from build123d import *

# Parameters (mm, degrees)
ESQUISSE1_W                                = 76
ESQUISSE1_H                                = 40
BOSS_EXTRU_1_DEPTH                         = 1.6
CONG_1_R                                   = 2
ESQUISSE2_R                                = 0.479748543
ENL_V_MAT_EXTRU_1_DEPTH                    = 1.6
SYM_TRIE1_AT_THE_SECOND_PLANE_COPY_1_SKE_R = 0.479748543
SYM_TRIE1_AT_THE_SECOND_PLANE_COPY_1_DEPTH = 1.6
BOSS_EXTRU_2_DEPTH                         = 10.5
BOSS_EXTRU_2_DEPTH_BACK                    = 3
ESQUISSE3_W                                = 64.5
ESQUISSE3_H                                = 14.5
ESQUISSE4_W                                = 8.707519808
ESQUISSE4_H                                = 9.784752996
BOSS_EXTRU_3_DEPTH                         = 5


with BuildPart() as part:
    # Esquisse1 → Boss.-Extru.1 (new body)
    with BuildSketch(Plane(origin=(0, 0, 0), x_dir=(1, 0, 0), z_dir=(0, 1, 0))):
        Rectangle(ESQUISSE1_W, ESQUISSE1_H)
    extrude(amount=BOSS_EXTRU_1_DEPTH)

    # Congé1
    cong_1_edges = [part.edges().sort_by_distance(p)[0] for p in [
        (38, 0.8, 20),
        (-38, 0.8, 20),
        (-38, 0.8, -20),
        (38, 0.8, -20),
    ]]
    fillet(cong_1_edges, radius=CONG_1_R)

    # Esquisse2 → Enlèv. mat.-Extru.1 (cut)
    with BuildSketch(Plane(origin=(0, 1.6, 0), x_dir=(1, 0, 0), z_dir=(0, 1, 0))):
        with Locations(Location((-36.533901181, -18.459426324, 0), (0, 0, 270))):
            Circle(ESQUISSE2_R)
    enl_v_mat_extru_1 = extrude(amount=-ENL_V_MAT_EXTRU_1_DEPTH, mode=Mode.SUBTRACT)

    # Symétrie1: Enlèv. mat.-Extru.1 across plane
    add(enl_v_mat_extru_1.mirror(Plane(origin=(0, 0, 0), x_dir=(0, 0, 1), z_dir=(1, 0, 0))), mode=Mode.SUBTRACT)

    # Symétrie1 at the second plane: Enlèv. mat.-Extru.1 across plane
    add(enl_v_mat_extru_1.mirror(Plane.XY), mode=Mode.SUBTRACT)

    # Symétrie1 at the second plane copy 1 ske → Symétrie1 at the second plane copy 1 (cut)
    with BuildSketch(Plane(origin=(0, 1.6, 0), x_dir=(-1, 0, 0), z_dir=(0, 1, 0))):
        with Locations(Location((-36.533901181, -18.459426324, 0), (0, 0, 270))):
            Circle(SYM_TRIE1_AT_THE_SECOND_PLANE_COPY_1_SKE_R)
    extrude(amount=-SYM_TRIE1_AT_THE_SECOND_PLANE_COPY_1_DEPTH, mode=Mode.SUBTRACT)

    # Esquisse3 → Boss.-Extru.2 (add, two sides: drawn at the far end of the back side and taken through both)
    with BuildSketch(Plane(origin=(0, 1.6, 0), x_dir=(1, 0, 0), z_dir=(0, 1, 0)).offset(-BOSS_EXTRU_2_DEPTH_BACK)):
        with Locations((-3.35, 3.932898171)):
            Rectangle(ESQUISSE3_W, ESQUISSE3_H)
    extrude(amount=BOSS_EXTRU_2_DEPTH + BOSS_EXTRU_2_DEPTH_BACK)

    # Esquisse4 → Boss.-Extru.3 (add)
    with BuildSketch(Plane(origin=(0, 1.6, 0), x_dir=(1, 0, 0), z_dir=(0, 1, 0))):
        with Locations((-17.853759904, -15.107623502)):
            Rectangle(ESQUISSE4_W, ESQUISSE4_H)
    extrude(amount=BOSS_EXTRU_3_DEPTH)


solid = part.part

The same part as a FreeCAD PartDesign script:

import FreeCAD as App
import Part
import Sketcher
from FreeCAD import Vector
Q = App.Units.Quantity


def edges_at(feature, points):
    """Names of the edges that pass closest to the given points."""
    edges = feature.Shape.Edges
    near = lambda p: min(range(len(edges)), key=lambda i: edges[i].distToShape(Part.Vertex(*p))[0])
    return sorted({f"Edge{near(p) + 1}" for p in points})


def add_polygon(sketch, points):
    """Adds a closed chain of lines whose ends are joined by coincident constraints."""
    first, n = sketch.GeometryCount, len(points)
    for a, b in zip(points, points[1:] + points[:1]):
        sketch.addGeometry(Part.LineSegment(App.Vector(*a, 0), App.Vector(*b, 0)), False)
    for i in range(n):
        sketch.addConstraint(Sketcher.Constraint("Coincident", first + i, 2, first + (i + 1) % n, 1))

doc = App.newDocument("Part")
body = doc.addObject("PartDesign::Body", "Body")

sketch1 = doc.addObject("Sketcher::SketchObject", "Sketch")
body.addObject(sketch1)
sketch1.AttachmentSupport = (doc.XZ_Plane, [""])
sketch1.MapMode = "FlatFace"
add_polygon(sketch1, [(-38, -20), (-38, 20), (38, 20), (38, -20)])
sketch1.addConstraint([
    Sketcher.Constraint("Vertical", 0),
    Sketcher.Constraint("Horizontal", 1),
    Sketcher.Constraint("Vertical", 2),
    Sketcher.Constraint("Horizontal", 3),
    Sketcher.Constraint("Symmetric", 0, 2, 2, 2, -1, 1),
    Sketcher.Constraint("DistanceX", 1, 1, 1, 2, Q("76 mm")),
    Sketcher.Constraint("DistanceY", 0, 1, 0, 2, Q("40 mm")),
])
pad1 = doc.addObject("PartDesign::Pad", "Pad")
body.addObject(pad1)
pad1.Profile = sketch1
pad1.Length = 1.6
pad1.Reversed = True
doc.recompute()

fillet = doc.addObject("PartDesign::Fillet", "Fillet")
body.addObject(fillet)
fillet.Base = (pad1, edges_at(pad1, [
    (38, 0.8, 20),
    (-38, 0.8, 20),
    (-38, 0.8, -20),
    (38, 0.8, -20),
]))
fillet.Radius = 2

sketch2 = doc.addObject("Sketcher::SketchObject", "Sketch001")
body.addObject(sketch2)
sketch2.AttachmentSupport = (doc.XZ_Plane, [""])
sketch2.MapMode = "FlatFace"
sketch2.AttachmentOffset = App.Placement(Vector(0, 0, -1.6), App.Rotation())
sketch2.addGeometry(Part.Circle(Vector(-36.533901, 18.459426, 0), Vector(0, 0, 1), 0.479749), False)
sketch2.addConstraint([
    Sketcher.Constraint("Diameter", 0, Q("0.959497 mm")),
    Sketcher.Constraint("DistanceX", 0, 3, -1, 1, Q("36.533901 mm")),
    Sketcher.Constraint("DistanceY", -1, 1, 0, 3, Q("18.459426 mm")),
])
pocket1 = doc.addObject("PartDesign::Pocket", "Pocket")
body.addObject(pocket1)
pocket1.Profile = sketch2
pocket1.Length = 1.6
pocket1.Reversed = True
doc.recompute()

mirrored = doc.addObject("PartDesign::Mirrored", "Mirrored")
body.addObject(mirrored)
mirrored.Originals = [pocket1]
mirrored.MirrorPlane = (doc.YZ_Plane, [""])
body.Tip = mirrored
doc.recompute()

mirrored2 = doc.addObject("PartDesign::Mirrored", "Mirrored001")
body.addObject(mirrored2)
mirrored2.Originals = [pocket1]
mirrored2.MirrorPlane = (doc.XY_Plane, [""])
body.Tip = mirrored2

sketch3 = doc.addObject("Sketcher::SketchObject", "Sketch002")
body.addObject(sketch3)
sketch3.AttachmentSupport = (doc.XZ_Plane, [""])
sketch3.MapMode = "FlatFace"
sketch3.AttachmentOffset = App.Placement(Vector(0, 0, -1.6), App.Rotation())
sketch3.addGeometry(Part.Circle(Vector(36.533901, -18.459426, 0), Vector(0, 0, 1), 0.479749), False)
sketch3.addConstraint([
    Sketcher.Constraint("Diameter", 0, Q("0.959497 mm")),
    Sketcher.Constraint("DistanceX", -1, 1, 0, 3, Q("36.533901 mm")),
    Sketcher.Constraint("DistanceY", 0, 3, -1, 1, Q("18.459426 mm")),
])
pocket2 = doc.addObject("PartDesign::Pocket", "Pocket001")
body.addObject(pocket2)
pocket2.Profile = sketch3
pocket2.Length = 1.6
pocket2.Reversed = True

sketch4 = doc.addObject("Sketcher::SketchObject", "Sketch003")
body.addObject(sketch4)
sketch4.AttachmentSupport = (doc.XZ_Plane, [""])
sketch4.MapMode = "FlatFace"
sketch4.AttachmentOffset = App.Placement(Vector(0, 0, -1.6), App.Rotation())
add_polygon(sketch4, [(-35.6, -11.182898), (-35.6, 3.317102), (28.9, 3.317102), (28.9, -11.182898)])
sketch4.addConstraint([
    Sketcher.Constraint("Vertical", 0),
    Sketcher.Constraint("Horizontal", 1),
    Sketcher.Constraint("Vertical", 2),
    Sketcher.Constraint("Horizontal", 3),
    Sketcher.Constraint("DistanceX", 1, 1, 1, 2, Q("64.5 mm")),
    Sketcher.Constraint("DistanceY", 0, 1, 0, 2, Q("14.5 mm")),
    Sketcher.Constraint("DistanceX", 0, 2, -1, 1, Q("35.6 mm")),
    Sketcher.Constraint("DistanceY", -1, 1, 0, 2, Q("3.317102 mm")),
])
pad2 = doc.addObject("PartDesign::Pad", "Pad001")
body.addObject(pad2)
pad2.Profile = sketch4
pad2.Type = "TwoLengths"
pad2.Length = 10.5
pad2.Length2 = 3
pad2.Reversed = True

sketch5 = doc.addObject("Sketcher::SketchObject", "Sketch004")
body.addObject(sketch5)
sketch5.AttachmentSupport = (doc.XZ_Plane, [""])
sketch5.MapMode = "FlatFace"
sketch5.AttachmentOffset = App.Placement(Vector(0, 0, -1.6), App.Rotation())
add_polygon(sketch5, [(-22.20752, 10.215247), (-22.20752, 20), (-13.5, 20), (-13.5, 10.215247)])
sketch5.addConstraint([
    Sketcher.Constraint("Vertical", 0),
    Sketcher.Constraint("Horizontal", 1),
    Sketcher.Constraint("Vertical", 2),
    Sketcher.Constraint("Horizontal", 3),
    Sketcher.Constraint("DistanceY", -1, 1, 0, 2, Q("20 mm")),
    Sketcher.Constraint("DistanceX", 1, 2, -1, 1, Q("13.5 mm")),
    Sketcher.Constraint("DistanceX", 1, 1, 1, 2, Q("8.70752 mm")),
    Sketcher.Constraint("DistanceY", 0, 1, 0, 2, Q("9.784753 mm")),
])
pad3 = doc.addObject("PartDesign::Pad", "Pad002")
body.addObject(pad3)
pad3.Profile = sketch5
pad3.Length = 5
pad3.Reversed = True

doc.recompute()
